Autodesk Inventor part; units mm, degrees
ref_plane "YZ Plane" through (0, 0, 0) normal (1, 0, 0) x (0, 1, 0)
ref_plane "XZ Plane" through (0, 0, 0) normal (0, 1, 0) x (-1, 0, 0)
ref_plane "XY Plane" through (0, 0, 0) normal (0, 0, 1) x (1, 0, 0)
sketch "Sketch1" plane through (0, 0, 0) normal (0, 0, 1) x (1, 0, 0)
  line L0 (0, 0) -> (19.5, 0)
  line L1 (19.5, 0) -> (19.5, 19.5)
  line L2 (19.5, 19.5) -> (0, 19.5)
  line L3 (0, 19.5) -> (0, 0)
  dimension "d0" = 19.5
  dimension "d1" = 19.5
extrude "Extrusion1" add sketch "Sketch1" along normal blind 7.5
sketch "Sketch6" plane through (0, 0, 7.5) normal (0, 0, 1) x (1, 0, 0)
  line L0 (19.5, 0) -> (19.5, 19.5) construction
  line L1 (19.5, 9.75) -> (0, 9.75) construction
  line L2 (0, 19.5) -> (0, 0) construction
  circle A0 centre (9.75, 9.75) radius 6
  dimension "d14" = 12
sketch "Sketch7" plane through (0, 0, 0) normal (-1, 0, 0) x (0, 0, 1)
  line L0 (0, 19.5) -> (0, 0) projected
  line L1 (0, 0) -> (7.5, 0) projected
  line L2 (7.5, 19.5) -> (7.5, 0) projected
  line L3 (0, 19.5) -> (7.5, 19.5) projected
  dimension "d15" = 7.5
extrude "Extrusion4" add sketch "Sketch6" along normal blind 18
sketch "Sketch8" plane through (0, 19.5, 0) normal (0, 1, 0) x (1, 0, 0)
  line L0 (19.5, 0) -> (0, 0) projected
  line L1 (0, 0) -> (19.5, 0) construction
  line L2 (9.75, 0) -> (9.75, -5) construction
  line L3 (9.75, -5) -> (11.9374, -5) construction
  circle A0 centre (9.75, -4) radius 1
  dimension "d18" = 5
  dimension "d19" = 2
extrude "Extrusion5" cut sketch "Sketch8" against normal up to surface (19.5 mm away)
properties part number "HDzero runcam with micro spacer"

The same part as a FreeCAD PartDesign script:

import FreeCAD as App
import Part
import Sketcher
from FreeCAD import Vector


def add_polygon(sketch, points):
    """Adds a closed chain of lines whose ends are joined by coincident constraints."""
    first, n = sketch.GeometryCount, len(points)
    for a, b in zip(points, points[1:] + points[:1]):
        sketch.addGeometry(Part.LineSegment(App.Vector(*a, 0), App.Vector(*b, 0)), False)
    for i in range(n):
        sketch.addConstraint(Sketcher.Constraint("Coincident", first + i, 2, first + (i + 1) % n, 1))

doc = App.newDocument("Part")
body = doc.addObject("PartDesign::Body", "Body")

# Sketch on XY plane
sketch1 = body.newObject("Sketcher::SketchObject", "Sketch")
sketch1.AttachmentSupport = (doc.getObject("XY_Plane"), [""])
sketch1.MapMode = "FlatFace"
add_polygon(sketch1, [(0, 20), (0, 0), (20, 0), (20, 20)])  # lines 0-3
sketch1.addConstraint([
    Sketcher.Constraint("Vertical", 0),
    Sketcher.Constraint("Horizontal", 1),
    Sketcher.Constraint("Vertical", 2),
    Sketcher.Constraint("Horizontal", 3),
    Sketcher.Constraint("Coincident", 0, 2, -1, 1),
    Sketcher.Constraint("Equal", 3, 0),
    Sketcher.Constraint("DistanceX", 1, 1, 1, 2, 19.5),
])
pad1 = body.newObject("PartDesign::Pad", "Pad")
pad1.Profile = sketch1
pad1.Length = 7.5

# Sketch on XY plane
sketch2 = body.newObject("Sketcher::SketchObject", "Sketch001")
sketch2.AttachmentSupport = (doc.getObject("XY_Plane"), [""])
sketch2.MapMode = "FlatFace"
sketch2.AttachmentOffset = App.Placement(Vector(0, 0, 7.5), App.Rotation())
sketch2.addGeometry(Part.Circle(Vector(10, 10, 0), Vector(0, 0, 1), 6), False)
sketch2.addConstraint([
    Sketcher.Constraint("Diameter", 0, 12.0),
    Sketcher.Constraint("DistanceX", -1, 1, 0, 3, 9.75),
    Sketcher.Constraint("DistanceY", -1, 1, 0, 3, 9.75),
])
pad2 = body.newObject("PartDesign::Pad", "Pad001")
pad2.Profile = sketch2
pad2.Length = 18

# Sketch on XZ plane
sketch3 = body.newObject("Sketcher::SketchObject", "Sketch002")
sketch3.AttachmentSupport = (doc.getObject("XZ_Plane"), [""])
sketch3.MapMode = "FlatFace"
sketch3.AttachmentOffset = App.Placement(Vector(0, 0, -19.5), App.Rotation())
sketch3.addGeometry(Part.Circle(Vector(9.8, 4, 0), Vector(0, 0, 1), 1), False)
sketch3.addConstraint([
    Sketcher.Constraint("Diameter", 0, 2.0),
    Sketcher.Constraint("DistanceY", -1, 1, 0, 3, 4.0),
    Sketcher.Constraint("DistanceX", -1, 1, 0, 3, 9.75),
])
pocket1 = body.newObject("PartDesign::Pocket", "Pocket")
pocket1.Profile = sketch3
pocket1.Length = 19.5
pocket1.Reversed = True

doc.recompute()
